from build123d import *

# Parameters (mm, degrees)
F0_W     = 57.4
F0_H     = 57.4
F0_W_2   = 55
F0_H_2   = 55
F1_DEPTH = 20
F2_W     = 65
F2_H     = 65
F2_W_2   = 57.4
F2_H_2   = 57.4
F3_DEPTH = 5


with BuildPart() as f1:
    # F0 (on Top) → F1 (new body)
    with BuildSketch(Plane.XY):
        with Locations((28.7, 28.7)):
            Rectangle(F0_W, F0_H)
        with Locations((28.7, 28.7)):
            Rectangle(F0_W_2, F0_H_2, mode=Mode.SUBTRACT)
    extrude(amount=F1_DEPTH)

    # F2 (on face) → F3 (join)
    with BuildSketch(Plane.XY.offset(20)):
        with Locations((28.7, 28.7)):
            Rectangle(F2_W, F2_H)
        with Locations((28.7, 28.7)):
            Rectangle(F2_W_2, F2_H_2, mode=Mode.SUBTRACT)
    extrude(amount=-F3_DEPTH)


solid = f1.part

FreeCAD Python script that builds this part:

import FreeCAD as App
import Part
import Sketcher

V = App.Vector
Q = App.Units.Quantity


def add_polygon(sketch, points):
    """Adds a closed chain of lines whose ends are joined by coincident constraints."""
    first, n = sketch.GeometryCount, len(points)
    for a, b in zip(points, points[1:] + points[:1]):
        sketch.addGeometry(Part.LineSegment(App.Vector(*a, 0), App.Vector(*b, 0)), False)
    for i in range(n):
        sketch.addConstraint(Sketcher.Constraint("Coincident", first + i, 2, first + (i + 1) % n, 1))

doc = App.newDocument("Part")
body = doc.addObject("PartDesign::Body", "Body")

# Sketch on XY plane
sketch1 = doc.addObject("Sketcher::SketchObject", "Sketch")
body.addObject(sketch1)
sketch1.AttachmentSupport = (doc.XY_Plane, [""])
sketch1.MapMode = "FlatFace"
add_polygon(sketch1, [(0, 57), (0, 0), (57, 0), (57, 57)])  # lines 0-3
add_polygon(sketch1, [(56, 1), (1, 1), (1, 56), (56, 56)])  # lines 4-7
sketch1.addConstraint([
    Sketcher.Constraint("Vertical", 0),
    Sketcher.Constraint("Horizontal", 1),
    Sketcher.Constraint("Vertical", 2),
    Sketcher.Constraint("Horizontal", 3),
    Sketcher.Constraint("Horizontal", 4),
    Sketcher.Constraint("Vertical", 5),
    Sketcher.Constraint("Horizontal", 6),
    Sketcher.Constraint("Vertical", 7),
    Sketcher.Constraint("Coincident", 0, 2, -1, 1),
    Sketcher.Constraint("Equal", 3, 0),
    Sketcher.Constraint("Equal", 6, 5),
    Sketcher.Constraint("DistanceX", 4, 2, 4, 1, Q("55 mm")),
    Sketcher.Constraint("DistanceX", 1, 1, 1, 2, Q("57.4 mm")),
    Sketcher.Constraint("DistanceX", -1, 1, 4, 2, Q("1.2 mm")),
    Sketcher.Constraint("DistanceY", -1, 1, 4, 2, Q("1.2 mm")),
])
pad1 = doc.addObject("PartDesign::Pad", "Pad")
body.addObject(pad1)
pad1.Profile = sketch1
pad1.Length = 20

# Sketch on XY plane
sketch2 = doc.addObject("Sketcher::SketchObject", "Sketch001")
body.addObject(sketch2)
sketch2.AttachmentSupport = (doc.XY_Plane, [""])
sketch2.MapMode = "FlatFace"
sketch2.AttachmentOffset = App.Placement(V(0, 0, 20), App.Rotation())
add_polygon(sketch2, [(-4, 61), (-4, -4), (61, -4), (61, 61)])  # lines 0-3
add_polygon(sketch2, [(57, 0), (0, 0), (0, 57), (57, 57)])  # lines 4-7
sketch2.addConstraint([
    Sketcher.Constraint("Vertical", 0),
    Sketcher.Constraint("Horizontal", 1),
    Sketcher.Constraint("Vertical", 2),
    Sketcher.Constraint("Horizontal", 3),
    Sketcher.Constraint("Horizontal", 4),
    Sketcher.Constraint("Vertical", 5),
    Sketcher.Constraint("Horizontal", 6),
    Sketcher.Constraint("Vertical", 7),
    Sketcher.Constraint("Coincident", 4, 2, -1, 1),
    Sketcher.Constraint("Equal", 3, 0),
    Sketcher.Constraint("Equal", 6, 5),
    Sketcher.Constraint("DistanceX", 1, 1, 1, 2, Q("65 mm")),
    Sketcher.Constraint("DistanceX", 4, 2, 4, 1, Q("57.4 mm")),
    Sketcher.Constraint("DistanceX", 0, 2, -1, 1, Q("3.8 mm")),
    Sketcher.Constraint("DistanceY", 0, 2, -1, 1, Q("3.8 mm")),
])
pad2 = doc.addObject("PartDesign::Pad", "Pad001")
body.addObject(pad2)
pad2.Profile = sketch2
pad2.Length = 5
pad2.Reversed = True

doc.recompute()
